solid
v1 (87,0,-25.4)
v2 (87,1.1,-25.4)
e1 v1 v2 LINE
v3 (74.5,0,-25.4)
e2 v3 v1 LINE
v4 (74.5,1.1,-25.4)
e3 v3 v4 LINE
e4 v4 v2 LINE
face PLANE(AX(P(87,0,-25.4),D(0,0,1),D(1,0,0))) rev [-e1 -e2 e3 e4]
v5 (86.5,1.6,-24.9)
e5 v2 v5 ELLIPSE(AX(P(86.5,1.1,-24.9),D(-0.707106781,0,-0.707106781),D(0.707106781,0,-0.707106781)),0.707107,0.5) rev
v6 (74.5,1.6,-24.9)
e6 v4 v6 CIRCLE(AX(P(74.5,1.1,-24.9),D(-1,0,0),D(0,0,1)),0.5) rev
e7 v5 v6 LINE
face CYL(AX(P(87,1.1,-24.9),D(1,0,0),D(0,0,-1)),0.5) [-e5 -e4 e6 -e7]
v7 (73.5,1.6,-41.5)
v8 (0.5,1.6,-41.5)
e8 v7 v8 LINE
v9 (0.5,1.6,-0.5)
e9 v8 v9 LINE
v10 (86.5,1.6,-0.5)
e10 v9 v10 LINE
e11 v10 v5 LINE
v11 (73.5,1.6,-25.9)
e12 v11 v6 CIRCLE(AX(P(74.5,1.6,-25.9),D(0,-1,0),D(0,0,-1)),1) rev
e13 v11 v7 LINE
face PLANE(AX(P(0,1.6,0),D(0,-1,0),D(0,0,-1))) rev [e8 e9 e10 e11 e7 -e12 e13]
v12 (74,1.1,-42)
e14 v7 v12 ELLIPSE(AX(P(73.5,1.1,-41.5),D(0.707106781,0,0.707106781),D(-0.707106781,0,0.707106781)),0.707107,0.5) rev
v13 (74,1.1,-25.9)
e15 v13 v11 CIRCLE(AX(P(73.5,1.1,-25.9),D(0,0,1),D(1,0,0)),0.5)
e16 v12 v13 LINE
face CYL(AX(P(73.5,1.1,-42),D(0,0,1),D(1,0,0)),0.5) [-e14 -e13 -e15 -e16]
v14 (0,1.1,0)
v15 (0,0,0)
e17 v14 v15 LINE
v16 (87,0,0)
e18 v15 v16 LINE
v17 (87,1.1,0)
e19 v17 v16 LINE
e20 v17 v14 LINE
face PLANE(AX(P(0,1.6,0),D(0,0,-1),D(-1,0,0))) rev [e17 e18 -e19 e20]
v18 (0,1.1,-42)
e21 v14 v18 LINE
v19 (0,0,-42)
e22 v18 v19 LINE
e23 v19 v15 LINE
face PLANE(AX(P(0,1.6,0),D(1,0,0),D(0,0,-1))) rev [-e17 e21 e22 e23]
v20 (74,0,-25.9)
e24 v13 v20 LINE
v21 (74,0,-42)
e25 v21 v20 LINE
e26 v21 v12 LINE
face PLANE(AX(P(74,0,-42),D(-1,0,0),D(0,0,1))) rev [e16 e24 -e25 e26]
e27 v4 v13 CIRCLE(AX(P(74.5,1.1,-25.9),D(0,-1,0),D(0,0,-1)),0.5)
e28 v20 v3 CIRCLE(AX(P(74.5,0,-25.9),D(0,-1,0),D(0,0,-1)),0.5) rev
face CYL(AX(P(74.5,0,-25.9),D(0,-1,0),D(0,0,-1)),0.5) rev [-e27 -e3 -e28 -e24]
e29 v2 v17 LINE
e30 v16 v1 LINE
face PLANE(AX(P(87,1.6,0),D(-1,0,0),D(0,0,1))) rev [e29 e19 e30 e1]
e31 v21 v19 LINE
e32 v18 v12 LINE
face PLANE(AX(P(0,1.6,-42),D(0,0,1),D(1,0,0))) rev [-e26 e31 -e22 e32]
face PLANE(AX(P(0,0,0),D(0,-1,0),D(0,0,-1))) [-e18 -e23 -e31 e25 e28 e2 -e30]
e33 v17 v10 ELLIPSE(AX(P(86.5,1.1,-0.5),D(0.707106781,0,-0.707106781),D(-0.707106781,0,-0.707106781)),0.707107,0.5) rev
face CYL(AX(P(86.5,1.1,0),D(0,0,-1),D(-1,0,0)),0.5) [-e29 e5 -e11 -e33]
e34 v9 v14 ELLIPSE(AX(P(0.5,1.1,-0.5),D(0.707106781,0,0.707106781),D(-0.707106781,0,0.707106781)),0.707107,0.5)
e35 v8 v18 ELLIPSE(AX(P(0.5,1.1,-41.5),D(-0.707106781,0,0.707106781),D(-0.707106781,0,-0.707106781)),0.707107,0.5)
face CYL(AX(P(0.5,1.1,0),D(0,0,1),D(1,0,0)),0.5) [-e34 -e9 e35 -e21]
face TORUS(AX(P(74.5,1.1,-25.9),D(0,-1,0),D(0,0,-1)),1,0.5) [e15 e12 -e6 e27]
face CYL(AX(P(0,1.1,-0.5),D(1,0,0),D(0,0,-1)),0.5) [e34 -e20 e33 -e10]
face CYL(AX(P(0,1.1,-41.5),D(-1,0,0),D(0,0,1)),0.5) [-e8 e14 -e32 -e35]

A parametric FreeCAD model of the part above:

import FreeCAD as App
import Part
import Sketcher
from FreeCAD import Vector
Q = App.Units.Quantity


def edges_at(feature, points):
    """Names of the edges that pass closest to the given points."""
    edges = feature.Shape.Edges
    near = lambda p: min(range(len(edges)), key=lambda i: edges[i].distToShape(Part.Vertex(*p))[0])
    return sorted({f"Edge{near(p) + 1}" for p in points})


def add_polygon(sketch, points):
    """Adds a closed chain of lines whose ends are joined by coincident constraints."""
    first, n = sketch.GeometryCount, len(points)
    for a, b in zip(points, points[1:] + points[:1]):
        sketch.addGeometry(Part.LineSegment(App.Vector(*a, 0), App.Vector(*b, 0)), False)
    for i in range(n):
        sketch.addConstraint(Sketcher.Constraint("Coincident", first + i, 2, first + (i + 1) % n, 1))

doc = App.newDocument("Part")
params = doc.addObject("Spreadsheet::Sheet", "Params")
for row, (alias, value) in enumerate([
    ("sketch1_width", "87 mm"),
    ("sketch1_height", "42 mm"),
    ("pad1_length", "1.6 mm"),
    ("sketch2_width", "13 mm"),
    ("sketch2_height", "16.6 mm"),
    ("pocket1_length", "1.6 mm"),
    ("fillet_radius", "0.5 mm"),
], start=1):
    params.set(f"A{row}", alias)
    params.set(f"B{row}", "=" + value)
    params.setAlias(f"B{row}", alias)

body = doc.addObject("PartDesign::Body", "Body")

# Sketch on XZ plane
sketch1 = body.newObject("Sketcher::SketchObject", "Sketch")
sketch1.AttachmentSupport = (doc.getObject("XZ_Plane"), [""])
sketch1.MapMode = "FlatFace"
add_polygon(sketch1, [(0, -42), (0, 0), (87, 0), (87, -42)])  # lines 0-3
sketch1.addConstraint(Sketcher.Constraint("Vertical", 0))
sketch1.addConstraint(Sketcher.Constraint("Horizontal", 1))
sketch1.addConstraint(Sketcher.Constraint("Vertical", 2))
sketch1.addConstraint(Sketcher.Constraint("Horizontal", 3))
sketch1.addConstraint(Sketcher.Constraint("Coincident", 0, 2, -1, 1))
sketch1.addConstraint(Sketcher.Constraint("DistanceX", 1, 1, 1, 2, Q("87 mm")))
sketch1.addConstraint(Sketcher.Constraint("DistanceY", 0, 1, 0, 2, Q("42 mm")))
sketch1.setExpression("Constraints[9]", "Params.sketch1_width")
sketch1.setExpression("Constraints[10]", "Params.sketch1_height")
pad1 = body.newObject("PartDesign::Pad", "Pad")
pad1.Profile = sketch1
pad1.setExpression("Length", "Params.pad1_length")
pad1.Reversed = True

# Sketch on XZ plane
sketch2 = body.newObject("Sketcher::SketchObject", "Sketch001")
sketch2.AttachmentSupport = (doc.getObject("XZ_Plane"), [""])
sketch2.MapMode = "FlatFace"
sketch2.AttachmentOffset = App.Placement(Vector(0, 0, -1.6), App.Rotation())
add_polygon(sketch2, [(74, -42), (74, -25), (87, -25), (87, -42)])  # lines 0-3
sketch2.addConstraint(Sketcher.Constraint("Vertical", 0))
sketch2.addConstraint(Sketcher.Constraint("Horizontal", 1))
sketch2.addConstraint(Sketcher.Constraint("Vertical", 2))
sketch2.addConstraint(Sketcher.Constraint("Horizontal", 3))
sketch2.addConstraint(Sketcher.Constraint("DistanceX", 1, 1, 1, 2, Q("13 mm")))
sketch2.addConstraint(Sketcher.Constraint("DistanceY", 0, 1, 0, 2, Q("16.6 mm")))
sketch2.addConstraint(Sketcher.Constraint("DistanceX", -1, 1, 0, 2, Q("74 mm")))
sketch2.addConstraint(Sketcher.Constraint("DistanceY", 2, 2, -1, 1, Q("42 mm")))
sketch2.setExpression("Constraints[8]", "Params.sketch2_width")
sketch2.setExpression("Constraints[9]", "Params.sketch2_height")
pocket1 = body.newObject("PartDesign::Pocket", "Pocket")
pocket1.Profile = sketch2
pocket1.setExpression("Length", "Params.pocket1_length")
pocket1.Reversed = True
doc.recompute()

fillet = body.newObject("PartDesign::Fillet", "Fillet")
fillet.Base = (pocket1, edges_at(pocket1, [
    (87, 1.6, -12.7),
    (37, 1.6, -42),
    (74, 0.8, -25.4),
    (74, 1.6, -33.7),
    (80.5, 1.6, -25.4),
    (0, 1.6, -21),
    (43.5, 1.6, 0),
]))
fillet.setExpression("Radius", "Params.fillet_radius")

doc.recompute()
